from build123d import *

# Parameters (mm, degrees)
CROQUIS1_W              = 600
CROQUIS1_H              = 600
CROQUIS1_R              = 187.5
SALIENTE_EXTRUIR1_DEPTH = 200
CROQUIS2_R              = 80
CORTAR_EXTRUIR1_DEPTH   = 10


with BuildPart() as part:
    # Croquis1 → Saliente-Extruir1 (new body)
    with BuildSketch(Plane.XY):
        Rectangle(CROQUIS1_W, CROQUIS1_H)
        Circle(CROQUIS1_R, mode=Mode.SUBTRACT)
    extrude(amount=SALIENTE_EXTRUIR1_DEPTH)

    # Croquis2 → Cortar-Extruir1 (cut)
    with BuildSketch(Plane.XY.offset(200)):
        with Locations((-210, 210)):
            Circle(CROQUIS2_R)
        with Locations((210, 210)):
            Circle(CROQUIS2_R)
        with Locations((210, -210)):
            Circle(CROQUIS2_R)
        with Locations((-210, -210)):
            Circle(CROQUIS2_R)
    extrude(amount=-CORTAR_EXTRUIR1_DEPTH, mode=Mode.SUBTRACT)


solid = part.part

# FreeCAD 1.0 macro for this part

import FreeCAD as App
import Part
import Sketcher
Q = App.Units.Quantity


def add_polygon(sketch, points):
    """Adds a closed chain of lines whose ends are joined by coincident constraints."""
    first, n = sketch.GeometryCount, len(points)
    for a, b in zip(points, points[1:] + points[:1]):
        sketch.addGeometry(Part.LineSegment(App.Vector(*a, 0), App.Vector(*b, 0)), False)
    for i in range(n):
        sketch.addConstraint(Sketcher.Constraint("Coincident", first + i, 2, first + (i + 1) % n, 1))

doc = App.newDocument("Part")
body = doc.addObject("PartDesign::Body", "Body")

# Sketch on XY plane
sketch1 = body.newObject("Sketcher::SketchObject", "Sketch")
sketch1.AttachmentSupport = (doc.getObject("XY_Plane"), [""])
sketch1.MapMode = "FlatFace"
add_polygon(sketch1, [(-300, 300), (-300, -300), (300, -300), (300, 300)])  # lines 0-3
sketch1.addGeometry(Part.Circle(App.Vector(0, 0, 0), App.Vector(0, 0, 1), 187.5), False)  # 4
sketch1.addConstraint(Sketcher.Constraint("Vertical", 0))
sketch1.addConstraint(Sketcher.Constraint("Horizontal", 1))
sketch1.addConstraint(Sketcher.Constraint("Vertical", 2))
sketch1.addConstraint(Sketcher.Constraint("Horizontal", 3))
sketch1.addConstraint(Sketcher.Constraint("Coincident", 4, 3, -1, 1))
sketch1.addConstraint(Sketcher.Constraint("Symmetric", 0, 2, 2, 2, -1, 1))
sketch1.addConstraint(Sketcher.Constraint("Equal", 3, 0))
sketch1.addConstraint(Sketcher.Constraint("Diameter", 4, Q("375 mm")))
sketch1.addConstraint(Sketcher.Constraint("DistanceX", 1, 1, 1, 2, Q("600 mm")))
pad1 = body.newObject("PartDesign::Pad", "Pad")
pad1.Profile = sketch1
pad1.Length = 200

# Sketch on XY plane
sketch2 = body.newObject("Sketcher::SketchObject", "Sketch001")
sketch2.AttachmentSupport = (doc.getObject("XY_Plane"), [""])
sketch2.MapMode = "FlatFace"
sketch2.AttachmentOffset = App.Placement(App.Vector(0, 0, 200), App.Rotation())
sketch2.addGeometry(Part.Circle(App.Vector(-210, 210, 0), App.Vector(0, 0, 1), 80), False)
sketch2.addGeometry(Part.Circle(App.Vector(210, 210, 0), App.Vector(0, 0, 1), 80), False)
sketch2.addGeometry(Part.Circle(App.Vector(210, -210, 0), App.Vector(0, 0, 1), 80), False)
sketch2.addGeometry(Part.Circle(App.Vector(-210, -210, 0), App.Vector(0, 0, 1), 80), False)
sketch2.addConstraint(Sketcher.Constraint("Equal", 0, 1))
sketch2.addConstraint(Sketcher.Constraint("Equal", 1, 2))
sketch2.addConstraint(Sketcher.Constraint("Equal", 2, 3))
sketch2.addConstraint(Sketcher.Constraint("Symmetric", 0, 3, 2, 3, -1, 1))
sketch2.addConstraint(Sketcher.Constraint("Symmetric", 1, 3, 3, 3, -1, 1))
sketch2.addConstraint(Sketcher.Constraint("Symmetric", 0, 3, 1, 3, -2))
sketch2.addConstraint(Sketcher.Constraint("Diameter", 0, Q("160 mm")))
sketch2.addConstraint(Sketcher.Constraint("DistanceX", 0, 3, -1, 1, Q("210 mm")))
sketch2.addConstraint(Sketcher.Constraint("DistanceY", -1, 1, 0, 3, Q("210 mm")))
pocket1 = body.newObject("PartDesign::Pocket", "Pocket")
pocket1.Profile = sketch2
pocket1.Length = 10

doc.recompute()
